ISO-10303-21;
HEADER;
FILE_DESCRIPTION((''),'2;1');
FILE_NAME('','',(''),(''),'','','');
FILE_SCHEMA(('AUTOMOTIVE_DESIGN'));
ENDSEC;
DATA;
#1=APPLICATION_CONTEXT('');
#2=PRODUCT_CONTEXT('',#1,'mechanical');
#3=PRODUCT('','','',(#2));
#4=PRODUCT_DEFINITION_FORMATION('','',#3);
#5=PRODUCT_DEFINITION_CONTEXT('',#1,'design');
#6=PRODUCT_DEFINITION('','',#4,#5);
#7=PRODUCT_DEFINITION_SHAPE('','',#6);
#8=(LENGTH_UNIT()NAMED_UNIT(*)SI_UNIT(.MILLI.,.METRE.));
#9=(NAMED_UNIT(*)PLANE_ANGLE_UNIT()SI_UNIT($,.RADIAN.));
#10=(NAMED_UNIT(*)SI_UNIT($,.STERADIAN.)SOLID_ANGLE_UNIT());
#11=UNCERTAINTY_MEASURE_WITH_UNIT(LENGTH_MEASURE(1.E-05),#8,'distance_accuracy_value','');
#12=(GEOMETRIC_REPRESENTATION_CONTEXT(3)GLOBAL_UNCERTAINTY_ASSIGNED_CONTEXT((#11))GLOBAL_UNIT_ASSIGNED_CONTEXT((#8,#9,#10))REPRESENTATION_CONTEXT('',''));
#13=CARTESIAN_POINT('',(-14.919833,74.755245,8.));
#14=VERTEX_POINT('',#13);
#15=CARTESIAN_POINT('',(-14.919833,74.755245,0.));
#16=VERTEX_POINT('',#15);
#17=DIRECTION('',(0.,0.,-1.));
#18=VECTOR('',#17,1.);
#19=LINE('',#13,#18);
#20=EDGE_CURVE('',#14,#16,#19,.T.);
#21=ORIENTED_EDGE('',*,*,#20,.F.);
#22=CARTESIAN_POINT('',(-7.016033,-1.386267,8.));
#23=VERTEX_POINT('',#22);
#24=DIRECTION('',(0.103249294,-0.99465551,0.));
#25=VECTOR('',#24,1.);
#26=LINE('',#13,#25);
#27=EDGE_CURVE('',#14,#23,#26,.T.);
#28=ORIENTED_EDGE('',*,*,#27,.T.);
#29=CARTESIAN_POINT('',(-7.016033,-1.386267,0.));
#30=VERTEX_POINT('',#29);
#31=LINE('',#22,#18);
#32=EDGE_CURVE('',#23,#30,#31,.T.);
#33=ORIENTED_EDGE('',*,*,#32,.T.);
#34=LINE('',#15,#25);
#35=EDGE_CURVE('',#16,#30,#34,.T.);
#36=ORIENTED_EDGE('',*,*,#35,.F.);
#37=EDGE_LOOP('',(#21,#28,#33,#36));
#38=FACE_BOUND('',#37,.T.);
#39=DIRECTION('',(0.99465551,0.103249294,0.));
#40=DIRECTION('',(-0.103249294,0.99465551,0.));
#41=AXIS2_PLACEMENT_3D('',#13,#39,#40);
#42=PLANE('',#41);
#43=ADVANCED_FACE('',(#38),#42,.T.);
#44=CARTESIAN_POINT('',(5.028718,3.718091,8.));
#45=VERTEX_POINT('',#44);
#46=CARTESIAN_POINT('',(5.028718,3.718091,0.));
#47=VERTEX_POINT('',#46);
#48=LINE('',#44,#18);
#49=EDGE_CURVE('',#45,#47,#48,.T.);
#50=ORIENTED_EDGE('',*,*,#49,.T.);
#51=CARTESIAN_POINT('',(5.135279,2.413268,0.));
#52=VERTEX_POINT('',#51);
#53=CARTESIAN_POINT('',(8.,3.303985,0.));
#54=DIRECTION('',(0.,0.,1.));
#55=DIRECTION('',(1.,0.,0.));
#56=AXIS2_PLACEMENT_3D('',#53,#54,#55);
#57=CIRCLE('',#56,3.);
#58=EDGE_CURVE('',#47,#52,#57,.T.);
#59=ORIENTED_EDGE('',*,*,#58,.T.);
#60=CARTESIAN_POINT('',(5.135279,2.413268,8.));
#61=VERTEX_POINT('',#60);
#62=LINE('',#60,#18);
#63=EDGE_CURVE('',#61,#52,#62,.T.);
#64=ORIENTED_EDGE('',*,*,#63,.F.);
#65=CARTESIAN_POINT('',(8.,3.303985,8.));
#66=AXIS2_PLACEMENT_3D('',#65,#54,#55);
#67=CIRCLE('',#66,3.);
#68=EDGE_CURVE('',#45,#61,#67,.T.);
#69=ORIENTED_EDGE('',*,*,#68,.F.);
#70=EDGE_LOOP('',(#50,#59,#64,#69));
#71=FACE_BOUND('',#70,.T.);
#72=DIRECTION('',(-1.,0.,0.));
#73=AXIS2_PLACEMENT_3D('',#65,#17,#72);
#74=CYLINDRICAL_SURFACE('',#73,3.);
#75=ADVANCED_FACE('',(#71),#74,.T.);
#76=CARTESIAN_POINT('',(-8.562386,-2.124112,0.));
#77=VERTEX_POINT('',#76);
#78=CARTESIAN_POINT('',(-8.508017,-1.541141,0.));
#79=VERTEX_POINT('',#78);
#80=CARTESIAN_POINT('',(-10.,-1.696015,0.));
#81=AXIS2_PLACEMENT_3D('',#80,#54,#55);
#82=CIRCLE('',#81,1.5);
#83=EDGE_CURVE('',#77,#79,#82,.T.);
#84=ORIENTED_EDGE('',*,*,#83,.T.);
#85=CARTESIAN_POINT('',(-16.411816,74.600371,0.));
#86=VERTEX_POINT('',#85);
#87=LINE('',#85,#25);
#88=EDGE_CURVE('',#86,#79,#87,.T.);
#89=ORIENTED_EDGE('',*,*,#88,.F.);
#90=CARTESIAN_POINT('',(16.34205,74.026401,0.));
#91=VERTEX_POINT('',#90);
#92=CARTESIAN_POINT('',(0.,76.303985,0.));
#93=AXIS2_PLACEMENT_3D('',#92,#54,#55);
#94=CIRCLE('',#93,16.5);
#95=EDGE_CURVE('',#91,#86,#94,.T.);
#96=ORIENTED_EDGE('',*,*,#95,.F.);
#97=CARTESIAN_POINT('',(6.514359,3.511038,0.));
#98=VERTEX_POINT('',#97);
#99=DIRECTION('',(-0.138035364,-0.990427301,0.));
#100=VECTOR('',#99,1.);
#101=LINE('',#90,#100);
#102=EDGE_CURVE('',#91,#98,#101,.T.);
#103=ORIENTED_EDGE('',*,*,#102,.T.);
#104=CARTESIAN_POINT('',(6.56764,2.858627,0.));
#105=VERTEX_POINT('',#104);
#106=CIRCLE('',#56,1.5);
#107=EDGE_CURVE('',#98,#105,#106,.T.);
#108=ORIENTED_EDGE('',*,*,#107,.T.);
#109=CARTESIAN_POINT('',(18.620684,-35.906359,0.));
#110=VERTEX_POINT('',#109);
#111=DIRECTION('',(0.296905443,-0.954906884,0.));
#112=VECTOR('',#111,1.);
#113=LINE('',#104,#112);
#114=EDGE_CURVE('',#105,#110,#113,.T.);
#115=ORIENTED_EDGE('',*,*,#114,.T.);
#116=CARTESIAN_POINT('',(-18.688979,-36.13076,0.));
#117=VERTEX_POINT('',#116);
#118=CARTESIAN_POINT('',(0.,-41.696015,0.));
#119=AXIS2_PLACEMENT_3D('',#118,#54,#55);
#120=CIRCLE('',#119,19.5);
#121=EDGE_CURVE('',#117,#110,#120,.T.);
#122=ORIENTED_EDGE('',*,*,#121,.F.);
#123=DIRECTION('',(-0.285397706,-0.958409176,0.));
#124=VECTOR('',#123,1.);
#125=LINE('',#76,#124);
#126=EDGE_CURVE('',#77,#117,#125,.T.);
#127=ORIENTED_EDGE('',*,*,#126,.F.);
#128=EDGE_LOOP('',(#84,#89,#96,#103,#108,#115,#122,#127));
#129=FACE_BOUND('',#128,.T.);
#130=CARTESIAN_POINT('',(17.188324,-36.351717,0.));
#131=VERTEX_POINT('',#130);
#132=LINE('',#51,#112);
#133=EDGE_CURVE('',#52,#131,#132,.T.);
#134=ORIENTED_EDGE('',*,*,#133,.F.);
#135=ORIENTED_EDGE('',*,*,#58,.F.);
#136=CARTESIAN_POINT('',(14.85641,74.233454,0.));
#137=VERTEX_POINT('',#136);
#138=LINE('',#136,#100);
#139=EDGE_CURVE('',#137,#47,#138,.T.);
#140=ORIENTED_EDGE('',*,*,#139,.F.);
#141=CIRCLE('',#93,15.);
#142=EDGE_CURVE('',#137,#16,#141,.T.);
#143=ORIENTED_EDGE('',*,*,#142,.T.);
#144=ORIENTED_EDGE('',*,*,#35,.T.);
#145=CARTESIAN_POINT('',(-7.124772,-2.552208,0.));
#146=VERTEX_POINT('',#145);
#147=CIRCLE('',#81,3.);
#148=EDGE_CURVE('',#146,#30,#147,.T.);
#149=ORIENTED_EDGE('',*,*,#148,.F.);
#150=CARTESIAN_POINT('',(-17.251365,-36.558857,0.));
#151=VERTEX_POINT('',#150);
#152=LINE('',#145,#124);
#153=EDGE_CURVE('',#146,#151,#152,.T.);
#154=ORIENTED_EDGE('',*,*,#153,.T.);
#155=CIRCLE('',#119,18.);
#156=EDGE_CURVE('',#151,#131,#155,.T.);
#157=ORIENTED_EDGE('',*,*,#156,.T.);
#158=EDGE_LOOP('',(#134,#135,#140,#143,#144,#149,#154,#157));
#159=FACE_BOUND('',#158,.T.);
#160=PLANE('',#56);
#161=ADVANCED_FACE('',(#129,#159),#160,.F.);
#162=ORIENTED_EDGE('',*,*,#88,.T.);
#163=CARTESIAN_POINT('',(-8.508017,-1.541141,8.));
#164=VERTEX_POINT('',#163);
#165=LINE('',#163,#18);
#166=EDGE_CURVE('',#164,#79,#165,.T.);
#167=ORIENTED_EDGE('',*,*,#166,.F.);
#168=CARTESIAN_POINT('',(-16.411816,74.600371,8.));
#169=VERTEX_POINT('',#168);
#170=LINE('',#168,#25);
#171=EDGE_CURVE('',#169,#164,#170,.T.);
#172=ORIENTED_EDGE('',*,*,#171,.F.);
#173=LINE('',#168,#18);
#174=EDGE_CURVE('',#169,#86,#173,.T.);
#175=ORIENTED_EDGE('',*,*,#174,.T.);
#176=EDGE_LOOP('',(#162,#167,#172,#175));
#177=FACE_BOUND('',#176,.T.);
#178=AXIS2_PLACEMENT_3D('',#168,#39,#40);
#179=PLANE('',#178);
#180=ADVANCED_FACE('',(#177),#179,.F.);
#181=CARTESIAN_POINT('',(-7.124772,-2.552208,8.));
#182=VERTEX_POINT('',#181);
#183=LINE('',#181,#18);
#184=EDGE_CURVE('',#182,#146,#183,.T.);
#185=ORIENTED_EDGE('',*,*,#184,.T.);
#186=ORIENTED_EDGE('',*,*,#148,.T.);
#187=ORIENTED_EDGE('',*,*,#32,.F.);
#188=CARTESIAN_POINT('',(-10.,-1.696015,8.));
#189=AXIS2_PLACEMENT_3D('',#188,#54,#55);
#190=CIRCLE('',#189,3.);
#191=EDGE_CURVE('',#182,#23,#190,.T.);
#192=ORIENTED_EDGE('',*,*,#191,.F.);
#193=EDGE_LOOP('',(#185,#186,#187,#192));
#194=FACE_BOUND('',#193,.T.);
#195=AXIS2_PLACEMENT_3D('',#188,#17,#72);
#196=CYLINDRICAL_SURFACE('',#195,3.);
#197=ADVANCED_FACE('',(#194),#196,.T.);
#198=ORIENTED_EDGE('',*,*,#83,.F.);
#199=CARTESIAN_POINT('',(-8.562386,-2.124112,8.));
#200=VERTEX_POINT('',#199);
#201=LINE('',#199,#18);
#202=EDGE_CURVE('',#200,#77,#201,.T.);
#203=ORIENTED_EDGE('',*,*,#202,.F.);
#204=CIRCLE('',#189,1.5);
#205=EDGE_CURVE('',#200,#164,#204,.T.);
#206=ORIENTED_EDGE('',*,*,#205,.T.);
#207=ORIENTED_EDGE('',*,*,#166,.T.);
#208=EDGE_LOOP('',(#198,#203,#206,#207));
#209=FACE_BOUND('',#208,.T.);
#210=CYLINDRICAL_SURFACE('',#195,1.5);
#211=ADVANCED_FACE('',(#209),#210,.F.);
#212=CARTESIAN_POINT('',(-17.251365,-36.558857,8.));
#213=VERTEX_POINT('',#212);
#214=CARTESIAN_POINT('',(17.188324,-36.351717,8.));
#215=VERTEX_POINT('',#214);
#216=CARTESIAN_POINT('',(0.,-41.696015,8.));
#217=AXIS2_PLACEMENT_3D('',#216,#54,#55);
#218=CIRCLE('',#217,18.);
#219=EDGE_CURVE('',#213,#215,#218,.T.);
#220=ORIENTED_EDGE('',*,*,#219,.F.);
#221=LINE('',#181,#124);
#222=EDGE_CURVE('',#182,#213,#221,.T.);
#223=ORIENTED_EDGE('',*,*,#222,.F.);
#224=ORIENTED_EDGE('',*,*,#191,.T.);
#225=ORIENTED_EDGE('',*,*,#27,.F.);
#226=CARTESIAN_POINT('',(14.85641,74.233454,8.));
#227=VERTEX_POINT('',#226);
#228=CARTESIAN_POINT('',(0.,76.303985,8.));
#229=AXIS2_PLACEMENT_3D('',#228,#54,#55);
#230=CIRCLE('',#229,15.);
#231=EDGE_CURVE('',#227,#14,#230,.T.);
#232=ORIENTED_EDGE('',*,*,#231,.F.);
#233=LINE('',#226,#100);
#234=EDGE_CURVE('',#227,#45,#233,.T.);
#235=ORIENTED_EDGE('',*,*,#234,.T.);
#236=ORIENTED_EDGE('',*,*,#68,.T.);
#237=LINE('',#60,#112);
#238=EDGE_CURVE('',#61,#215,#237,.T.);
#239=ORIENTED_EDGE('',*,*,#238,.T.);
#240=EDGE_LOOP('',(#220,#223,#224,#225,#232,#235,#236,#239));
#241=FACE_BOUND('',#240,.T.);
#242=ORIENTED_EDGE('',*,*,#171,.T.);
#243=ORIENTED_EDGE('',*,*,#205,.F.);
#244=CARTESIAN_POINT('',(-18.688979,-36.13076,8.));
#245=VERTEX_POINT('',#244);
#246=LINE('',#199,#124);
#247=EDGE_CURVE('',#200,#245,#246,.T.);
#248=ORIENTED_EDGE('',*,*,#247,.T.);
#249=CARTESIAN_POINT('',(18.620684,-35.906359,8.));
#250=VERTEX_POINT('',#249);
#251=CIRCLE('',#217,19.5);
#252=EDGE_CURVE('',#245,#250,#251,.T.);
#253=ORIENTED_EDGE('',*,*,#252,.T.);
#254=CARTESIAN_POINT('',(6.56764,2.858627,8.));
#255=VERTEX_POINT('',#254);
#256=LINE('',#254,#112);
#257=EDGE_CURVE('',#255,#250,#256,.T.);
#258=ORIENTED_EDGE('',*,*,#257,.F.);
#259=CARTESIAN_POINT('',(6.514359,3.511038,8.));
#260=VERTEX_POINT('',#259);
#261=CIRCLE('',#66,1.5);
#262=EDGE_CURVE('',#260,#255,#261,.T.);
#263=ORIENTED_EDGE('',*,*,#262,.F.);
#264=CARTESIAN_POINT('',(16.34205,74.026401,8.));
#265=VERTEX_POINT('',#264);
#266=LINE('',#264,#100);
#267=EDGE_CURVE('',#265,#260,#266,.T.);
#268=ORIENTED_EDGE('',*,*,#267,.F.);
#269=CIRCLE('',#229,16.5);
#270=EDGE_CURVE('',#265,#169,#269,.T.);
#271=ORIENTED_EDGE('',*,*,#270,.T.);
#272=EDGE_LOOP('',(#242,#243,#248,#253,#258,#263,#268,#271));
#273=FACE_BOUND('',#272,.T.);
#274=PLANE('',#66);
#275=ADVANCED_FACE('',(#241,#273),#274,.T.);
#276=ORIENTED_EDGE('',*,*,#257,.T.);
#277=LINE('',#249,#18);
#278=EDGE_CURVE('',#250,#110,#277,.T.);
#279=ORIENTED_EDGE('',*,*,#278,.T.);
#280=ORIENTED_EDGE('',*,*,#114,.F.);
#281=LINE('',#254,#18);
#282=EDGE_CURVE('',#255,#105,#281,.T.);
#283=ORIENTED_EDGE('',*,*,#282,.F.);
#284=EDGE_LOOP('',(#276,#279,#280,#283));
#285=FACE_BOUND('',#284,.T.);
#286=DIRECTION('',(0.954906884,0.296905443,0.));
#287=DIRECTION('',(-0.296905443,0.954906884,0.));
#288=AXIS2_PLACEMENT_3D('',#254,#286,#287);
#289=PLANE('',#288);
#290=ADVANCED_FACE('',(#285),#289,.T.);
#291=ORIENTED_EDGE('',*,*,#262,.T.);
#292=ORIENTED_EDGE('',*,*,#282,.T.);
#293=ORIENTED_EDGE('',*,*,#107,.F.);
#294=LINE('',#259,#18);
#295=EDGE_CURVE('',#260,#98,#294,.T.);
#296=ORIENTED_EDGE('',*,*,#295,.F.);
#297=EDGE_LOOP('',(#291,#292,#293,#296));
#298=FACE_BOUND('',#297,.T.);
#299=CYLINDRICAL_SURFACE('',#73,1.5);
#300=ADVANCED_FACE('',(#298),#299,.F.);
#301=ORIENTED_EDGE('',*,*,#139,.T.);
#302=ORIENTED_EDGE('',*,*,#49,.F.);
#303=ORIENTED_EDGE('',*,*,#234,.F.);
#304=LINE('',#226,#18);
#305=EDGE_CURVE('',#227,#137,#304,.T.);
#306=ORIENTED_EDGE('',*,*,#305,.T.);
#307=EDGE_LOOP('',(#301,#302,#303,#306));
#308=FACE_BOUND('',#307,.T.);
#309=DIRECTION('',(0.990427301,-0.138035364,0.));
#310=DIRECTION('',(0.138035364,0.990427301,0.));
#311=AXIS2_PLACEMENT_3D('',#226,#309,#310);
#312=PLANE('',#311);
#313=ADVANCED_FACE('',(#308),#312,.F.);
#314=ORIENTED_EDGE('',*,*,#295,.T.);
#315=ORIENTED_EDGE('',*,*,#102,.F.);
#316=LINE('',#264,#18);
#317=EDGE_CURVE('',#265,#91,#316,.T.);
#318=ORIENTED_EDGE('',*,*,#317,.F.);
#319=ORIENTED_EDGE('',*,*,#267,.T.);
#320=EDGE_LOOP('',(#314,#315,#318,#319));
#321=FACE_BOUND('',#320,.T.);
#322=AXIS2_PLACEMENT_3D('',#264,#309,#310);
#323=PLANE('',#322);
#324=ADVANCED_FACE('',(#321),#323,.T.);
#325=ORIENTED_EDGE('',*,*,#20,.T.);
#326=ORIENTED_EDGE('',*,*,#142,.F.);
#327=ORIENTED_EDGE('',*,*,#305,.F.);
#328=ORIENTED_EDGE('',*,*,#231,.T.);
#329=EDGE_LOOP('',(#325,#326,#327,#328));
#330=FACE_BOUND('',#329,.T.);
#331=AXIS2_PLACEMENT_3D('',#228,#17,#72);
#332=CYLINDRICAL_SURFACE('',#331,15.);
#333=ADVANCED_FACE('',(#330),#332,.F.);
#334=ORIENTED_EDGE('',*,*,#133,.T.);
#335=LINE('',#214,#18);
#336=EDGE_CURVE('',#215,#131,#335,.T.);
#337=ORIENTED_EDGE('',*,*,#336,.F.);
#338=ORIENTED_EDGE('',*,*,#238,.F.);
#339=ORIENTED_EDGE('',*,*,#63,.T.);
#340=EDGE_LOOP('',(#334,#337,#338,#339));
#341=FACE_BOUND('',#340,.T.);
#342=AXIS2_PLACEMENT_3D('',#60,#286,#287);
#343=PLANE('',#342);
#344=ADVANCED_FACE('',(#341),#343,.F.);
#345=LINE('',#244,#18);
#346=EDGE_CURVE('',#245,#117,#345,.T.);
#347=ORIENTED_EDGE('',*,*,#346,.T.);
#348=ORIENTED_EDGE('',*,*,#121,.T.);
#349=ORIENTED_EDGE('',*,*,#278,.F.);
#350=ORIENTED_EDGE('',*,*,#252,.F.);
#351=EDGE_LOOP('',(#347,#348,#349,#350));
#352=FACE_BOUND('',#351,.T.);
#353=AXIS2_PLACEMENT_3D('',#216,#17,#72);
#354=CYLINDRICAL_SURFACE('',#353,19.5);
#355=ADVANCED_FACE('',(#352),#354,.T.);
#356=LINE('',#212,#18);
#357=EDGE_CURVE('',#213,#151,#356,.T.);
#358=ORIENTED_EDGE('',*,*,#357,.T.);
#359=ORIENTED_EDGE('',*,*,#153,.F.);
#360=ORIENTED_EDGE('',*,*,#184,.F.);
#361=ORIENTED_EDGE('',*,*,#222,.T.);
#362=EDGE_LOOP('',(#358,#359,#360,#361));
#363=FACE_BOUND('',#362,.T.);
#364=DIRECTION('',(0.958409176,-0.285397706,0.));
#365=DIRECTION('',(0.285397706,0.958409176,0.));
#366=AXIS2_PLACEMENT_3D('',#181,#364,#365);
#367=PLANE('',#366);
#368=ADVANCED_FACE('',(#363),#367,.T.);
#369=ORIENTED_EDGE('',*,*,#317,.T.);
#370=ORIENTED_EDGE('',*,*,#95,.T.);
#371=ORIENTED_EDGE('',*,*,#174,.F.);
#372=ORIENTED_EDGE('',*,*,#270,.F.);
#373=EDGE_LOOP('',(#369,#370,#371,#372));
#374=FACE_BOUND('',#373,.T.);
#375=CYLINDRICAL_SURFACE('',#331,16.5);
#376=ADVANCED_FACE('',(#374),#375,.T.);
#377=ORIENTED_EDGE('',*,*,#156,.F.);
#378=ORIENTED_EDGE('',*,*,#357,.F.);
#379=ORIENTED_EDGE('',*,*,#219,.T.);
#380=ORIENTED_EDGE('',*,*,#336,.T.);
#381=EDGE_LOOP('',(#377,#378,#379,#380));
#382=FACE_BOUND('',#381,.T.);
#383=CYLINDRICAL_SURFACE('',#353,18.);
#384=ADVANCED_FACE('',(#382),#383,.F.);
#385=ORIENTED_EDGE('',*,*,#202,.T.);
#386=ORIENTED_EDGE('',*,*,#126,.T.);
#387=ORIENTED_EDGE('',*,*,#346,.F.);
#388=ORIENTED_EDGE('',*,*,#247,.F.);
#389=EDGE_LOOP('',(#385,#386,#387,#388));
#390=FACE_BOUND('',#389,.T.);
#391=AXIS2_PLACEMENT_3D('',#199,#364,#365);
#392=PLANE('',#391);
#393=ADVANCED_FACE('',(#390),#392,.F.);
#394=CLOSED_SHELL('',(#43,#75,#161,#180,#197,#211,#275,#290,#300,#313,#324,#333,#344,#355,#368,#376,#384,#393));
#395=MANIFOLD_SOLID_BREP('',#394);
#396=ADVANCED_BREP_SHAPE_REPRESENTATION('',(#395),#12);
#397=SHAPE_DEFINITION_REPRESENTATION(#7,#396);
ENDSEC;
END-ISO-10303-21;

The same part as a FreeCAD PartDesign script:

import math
import FreeCAD as App
import Part
import Sketcher

V = App.Vector

doc = App.newDocument("Part")
body = doc.addObject("PartDesign::Body", "Body")

# Sketch on XY plane
sketch1 = doc.addObject("Sketcher::SketchObject", "Sketch")
body.addObject(sketch1)
sketch1.AttachmentSupport = (doc.XY_Plane, [""])
sketch1.MapMode = "FlatFace"
sketch1.addGeometry([
    Part.LineSegment(V(-16.4, 74.6, 0), V(-8.5, -1.5, 0)),  # 0
    Part.ArcOfCircle(Part.Circle(V(-10, -1.7, 0), V(0, 0, 1), 1.5), math.radians(-17), math.radians(6)),  # 1
    Part.LineSegment(V(-8.6, -2.1, 0), V(-18.7, -36.1, 0)),  # 2
    Part.ArcOfCircle(Part.Circle(V(0, -41.7, 0), V(0, 0, 1), 19.5), math.radians(163), math.radians(377)),  # 3
    Part.LineSegment(V(18.6, -35.9, 0), V(6.6, 2.9, 0)),  # 4
    Part.ArcOfCircle(Part.Circle(V(8, 3.3, 0), V(0, 0, 1), 1.5), math.radians(172), math.radians(197)),  # 5
    Part.LineSegment(V(6.5, 3.5, 0), V(16.3, 74, 0)),  # 6
    Part.ArcOfCircle(Part.Circle(V(0, 76.3, 0), V(0, 0, 1), 16.5), math.radians(-8), math.radians(186)),  # 7
    Part.LineSegment(V(-7, -1.4, 0), V(-14.9, 74.8, 0)),  # 8
    Part.ArcOfCircle(Part.Circle(V(0, 76.3, 0), V(0, 0, 1), 15), math.radians(-8), math.radians(186)),  # 9
    Part.LineSegment(V(14.9, 74.2, 0), V(5, 3.7, 0)),  # 10
    Part.ArcOfCircle(Part.Circle(V(8, 3.3, 0), V(0, 0, 1), 3), math.radians(172), math.radians(197)),  # 11
    Part.LineSegment(V(5.1, 2.4, 0), V(17.2, -36.4, 0)),  # 12
    Part.ArcOfCircle(Part.Circle(V(0, -41.7, 0), V(0, 0, 1), 18), math.radians(163), math.radians(377)),  # 13
    Part.LineSegment(V(-17.3, -36.6, 0), V(-7.1, -2.6, 0)),  # 14
    Part.ArcOfCircle(Part.Circle(V(-10, -1.7, 0), V(0, 0, 1), 3), math.radians(-17), math.radians(6)),  # 15
], False)
sketch1.addConstraint([
    Sketcher.Constraint("Tangent", 0, 2, 1, 2),
    Sketcher.Constraint("Tangent", 1, 1, 2, 1),
    Sketcher.Constraint("Tangent", 2, 2, 3, 1),
    Sketcher.Constraint("Tangent", 3, 2, 4, 1),
    Sketcher.Constraint("Tangent", 4, 2, 5, 2),
    Sketcher.Constraint("Tangent", 5, 1, 6, 1),
    Sketcher.Constraint("Tangent", 6, 2, 7, 1),
    Sketcher.Constraint("Tangent", 7, 2, 0, 1),
    Sketcher.Constraint("Tangent", 8, 2, 9, 2),
    Sketcher.Constraint("Tangent", 9, 1, 10, 1),
    Sketcher.Constraint("Tangent", 10, 2, 11, 1),
    Sketcher.Constraint("Tangent", 11, 2, 12, 1),
    Sketcher.Constraint("Tangent", 12, 2, 13, 2),
    Sketcher.Constraint("Tangent", 13, 1, 14, 1),
    Sketcher.Constraint("Tangent", 14, 2, 15, 1),
    Sketcher.Constraint("Tangent", 15, 2, 8, 1),
    Sketcher.Constraint("Coincident", 9, 3, 7, 3),
    Sketcher.Constraint("Coincident", 11, 3, 5, 3),
    Sketcher.Constraint("Coincident", 13, 3, 3, 3),
    Sketcher.Constraint("Coincident", 15, 3, 1, 3),
    Sketcher.Constraint("Equal", 1, 5),
    Sketcher.Constraint("Equal", 11, 15),
    Sketcher.Constraint("PointOnObject", 3, 3, -2),
    Sketcher.Constraint("PointOnObject", 7, 3, -2),
    Sketcher.Constraint("Parallel", 0, 8),
    Sketcher.Constraint("Parallel", 4, 12),
    Sketcher.Constraint("Radius", 9, 15.0),
    Sketcher.Constraint("Radius", 11, 3.0),
    Sketcher.Constraint("Radius", 13, 18.0),
    Sketcher.Constraint("Radius", 1, 1.5),
    Sketcher.Constraint("DistanceX", 1, 3, -1, 1, 10.0),
    Sketcher.Constraint("DistanceX", -1, 1, 5, 3, 8.0),
    Sketcher.Constraint("DistanceY", 3, 3, 1, 3, 40.0),
    Sketcher.Constraint("DistanceY", 1, 3, 5, 3, 5.0),
    Sketcher.Constraint("DistanceY", 5, 3, 7, 3, 73.0),
    Sketcher.Constraint("DistanceY", -1, 1, 6, 2, 74.026401),
])
pad1 = doc.addObject("PartDesign::Pad", "Pad")
body.addObject(pad1)
pad1.Profile = sketch1
pad1.Length = 8

doc.recompute()
